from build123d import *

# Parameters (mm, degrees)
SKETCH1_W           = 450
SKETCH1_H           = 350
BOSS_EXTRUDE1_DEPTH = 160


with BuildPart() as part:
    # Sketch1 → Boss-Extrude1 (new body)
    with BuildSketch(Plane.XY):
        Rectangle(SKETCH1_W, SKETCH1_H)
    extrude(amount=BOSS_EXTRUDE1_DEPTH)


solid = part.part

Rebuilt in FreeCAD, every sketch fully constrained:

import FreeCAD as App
import Part
import Sketcher
from FreeCAD import Vector
Q = App.Units.Quantity


def add_polygon(sketch, points):
    """Adds a closed chain of lines whose ends are joined by coincident constraints."""
    first, n = sketch.GeometryCount, len(points)
    for a, b in zip(points, points[1:] + points[:1]):
        sketch.addGeometry(Part.LineSegment(App.Vector(*a, 0), App.Vector(*b, 0)), False)
    for i in range(n):
        sketch.addConstraint(Sketcher.Constraint("Coincident", first + i, 2, first + (i + 1) % n, 1))

doc = App.newDocument("Part")
body = doc.addObject("PartDesign::Body", "Body")

# Sketch on XY plane
sketch1 = body.newObject("Sketcher::SketchObject", "Sketch")
sketch1.AttachmentSupport = (doc.getObject("XY_Plane"), [""])
sketch1.MapMode = "FlatFace"
add_polygon(sketch1, [(-225, 175), (-225, -175), (225, -175), (225, 175)])  # lines 0-3
sketch1.addConstraint(Sketcher.Constraint("Vertical", 0))
sketch1.addConstraint(Sketcher.Constraint("Horizontal", 1))
sketch1.addConstraint(Sketcher.Constraint("Vertical", 2))
sketch1.addConstraint(Sketcher.Constraint("Horizontal", 3))
sketch1.addConstraint(Sketcher.Constraint("Symmetric", 0, 2, 2, 2, -1, 1))
sketch1.addConstraint(Sketcher.Constraint("DistanceX", 1, 1, 1, 2, Q("450 mm")))
sketch1.addConstraint(Sketcher.Constraint("DistanceY", 0, 2, 0, 1, Q("350 mm")))
pad1 = body.newObject("PartDesign::Pad", "Pad")
pad1.Profile = sketch1
pad1.Length = 160

doc.recompute()
